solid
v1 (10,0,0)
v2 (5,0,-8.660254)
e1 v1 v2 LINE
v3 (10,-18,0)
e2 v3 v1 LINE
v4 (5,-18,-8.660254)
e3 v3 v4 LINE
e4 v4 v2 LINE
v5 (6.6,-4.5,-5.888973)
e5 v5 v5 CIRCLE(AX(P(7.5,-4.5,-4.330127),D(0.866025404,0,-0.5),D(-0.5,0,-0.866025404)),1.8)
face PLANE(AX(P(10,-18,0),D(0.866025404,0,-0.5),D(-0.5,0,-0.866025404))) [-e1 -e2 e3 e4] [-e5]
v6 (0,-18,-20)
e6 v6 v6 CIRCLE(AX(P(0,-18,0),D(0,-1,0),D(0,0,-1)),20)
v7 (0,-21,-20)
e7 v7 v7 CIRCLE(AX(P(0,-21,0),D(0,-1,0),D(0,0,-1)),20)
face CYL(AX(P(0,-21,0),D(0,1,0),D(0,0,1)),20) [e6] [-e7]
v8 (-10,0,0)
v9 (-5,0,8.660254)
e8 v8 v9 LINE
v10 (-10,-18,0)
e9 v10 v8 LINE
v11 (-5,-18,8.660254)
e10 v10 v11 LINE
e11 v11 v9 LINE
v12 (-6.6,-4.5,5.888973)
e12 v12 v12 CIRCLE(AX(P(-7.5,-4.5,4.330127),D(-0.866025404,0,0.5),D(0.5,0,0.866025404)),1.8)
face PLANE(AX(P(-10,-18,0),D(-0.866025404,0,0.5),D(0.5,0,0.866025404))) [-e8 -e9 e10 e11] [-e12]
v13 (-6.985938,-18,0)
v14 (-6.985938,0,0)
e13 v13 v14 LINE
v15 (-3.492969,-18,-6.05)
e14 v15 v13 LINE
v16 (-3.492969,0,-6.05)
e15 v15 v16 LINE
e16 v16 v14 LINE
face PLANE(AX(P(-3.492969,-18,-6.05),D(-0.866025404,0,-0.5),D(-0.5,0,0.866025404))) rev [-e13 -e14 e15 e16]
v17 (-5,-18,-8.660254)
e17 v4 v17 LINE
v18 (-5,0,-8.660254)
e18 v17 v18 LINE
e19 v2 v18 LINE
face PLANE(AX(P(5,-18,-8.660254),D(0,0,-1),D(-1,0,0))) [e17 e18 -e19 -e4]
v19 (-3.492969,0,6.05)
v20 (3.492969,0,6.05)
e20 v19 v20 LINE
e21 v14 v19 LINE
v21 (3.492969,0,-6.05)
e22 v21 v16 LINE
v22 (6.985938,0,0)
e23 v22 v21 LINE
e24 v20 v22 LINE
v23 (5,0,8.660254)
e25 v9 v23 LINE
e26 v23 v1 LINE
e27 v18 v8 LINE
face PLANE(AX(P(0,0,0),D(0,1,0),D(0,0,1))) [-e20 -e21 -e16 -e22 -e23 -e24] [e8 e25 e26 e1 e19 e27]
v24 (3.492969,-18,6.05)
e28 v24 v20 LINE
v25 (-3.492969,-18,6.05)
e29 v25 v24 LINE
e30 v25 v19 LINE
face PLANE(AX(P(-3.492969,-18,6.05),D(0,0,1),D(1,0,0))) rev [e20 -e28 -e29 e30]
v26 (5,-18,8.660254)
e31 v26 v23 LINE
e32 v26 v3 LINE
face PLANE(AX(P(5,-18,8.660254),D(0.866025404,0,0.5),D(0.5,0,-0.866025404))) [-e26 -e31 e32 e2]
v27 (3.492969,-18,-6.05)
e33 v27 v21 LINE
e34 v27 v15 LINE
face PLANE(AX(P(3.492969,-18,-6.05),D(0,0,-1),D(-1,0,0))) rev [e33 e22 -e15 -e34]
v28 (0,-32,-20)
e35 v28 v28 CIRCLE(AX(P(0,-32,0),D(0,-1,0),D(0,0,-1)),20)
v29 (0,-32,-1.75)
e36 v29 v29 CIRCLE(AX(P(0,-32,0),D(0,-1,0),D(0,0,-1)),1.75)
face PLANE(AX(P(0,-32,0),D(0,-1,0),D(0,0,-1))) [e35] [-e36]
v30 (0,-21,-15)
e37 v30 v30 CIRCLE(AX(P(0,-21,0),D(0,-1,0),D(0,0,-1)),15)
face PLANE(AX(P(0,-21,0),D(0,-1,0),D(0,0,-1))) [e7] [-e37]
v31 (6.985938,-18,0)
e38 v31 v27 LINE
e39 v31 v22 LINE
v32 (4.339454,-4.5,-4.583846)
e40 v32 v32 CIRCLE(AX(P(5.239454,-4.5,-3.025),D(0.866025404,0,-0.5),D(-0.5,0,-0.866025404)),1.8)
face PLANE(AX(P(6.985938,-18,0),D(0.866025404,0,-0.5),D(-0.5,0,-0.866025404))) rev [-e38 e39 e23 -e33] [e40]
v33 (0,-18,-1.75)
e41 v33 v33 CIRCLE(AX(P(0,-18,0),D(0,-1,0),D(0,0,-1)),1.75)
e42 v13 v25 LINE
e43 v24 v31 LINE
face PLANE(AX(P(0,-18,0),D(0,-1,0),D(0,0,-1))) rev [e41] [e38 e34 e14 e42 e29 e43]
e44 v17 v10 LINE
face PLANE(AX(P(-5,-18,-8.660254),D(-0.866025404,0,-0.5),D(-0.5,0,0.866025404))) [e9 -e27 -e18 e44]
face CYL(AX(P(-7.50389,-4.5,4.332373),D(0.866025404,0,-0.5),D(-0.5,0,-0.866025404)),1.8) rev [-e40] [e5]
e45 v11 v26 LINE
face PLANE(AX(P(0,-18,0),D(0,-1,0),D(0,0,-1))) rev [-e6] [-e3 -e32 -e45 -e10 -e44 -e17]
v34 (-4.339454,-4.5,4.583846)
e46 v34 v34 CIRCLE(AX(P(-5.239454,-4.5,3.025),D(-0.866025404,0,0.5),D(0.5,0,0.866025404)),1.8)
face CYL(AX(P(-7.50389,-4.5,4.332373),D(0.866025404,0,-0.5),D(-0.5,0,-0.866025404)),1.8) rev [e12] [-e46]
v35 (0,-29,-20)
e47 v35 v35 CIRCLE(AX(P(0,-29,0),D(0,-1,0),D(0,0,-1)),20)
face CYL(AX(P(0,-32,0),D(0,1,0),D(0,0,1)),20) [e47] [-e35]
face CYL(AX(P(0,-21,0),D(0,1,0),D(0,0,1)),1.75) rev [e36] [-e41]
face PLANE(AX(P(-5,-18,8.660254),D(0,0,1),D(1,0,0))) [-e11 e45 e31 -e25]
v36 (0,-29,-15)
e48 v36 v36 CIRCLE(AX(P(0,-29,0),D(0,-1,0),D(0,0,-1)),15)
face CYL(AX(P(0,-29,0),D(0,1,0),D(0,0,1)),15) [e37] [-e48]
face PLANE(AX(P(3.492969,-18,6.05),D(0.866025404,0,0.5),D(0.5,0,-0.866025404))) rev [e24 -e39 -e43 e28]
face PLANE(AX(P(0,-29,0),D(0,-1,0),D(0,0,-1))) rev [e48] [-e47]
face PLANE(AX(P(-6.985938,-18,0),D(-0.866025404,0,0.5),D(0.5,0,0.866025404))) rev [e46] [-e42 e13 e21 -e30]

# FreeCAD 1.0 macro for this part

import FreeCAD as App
import Part
import Sketcher
from FreeCAD import Vector
Q = App.Units.Quantity

doc = App.newDocument("Part")
params = doc.addObject("Spreadsheet::Sheet", "Params")
for row, (alias, value) in enumerate([
    ("sketch1_width", "10 mm"),
    ("sketch1_length", "10 mm"),
    ("pad1_length", "18 mm"),
    ("sketch2_diameter", "3.6 mm"),
    ("pocket1_length", "17.325 mm"),
    ("sketch3_diameter", "40 mm"),
    ("sketch3_diameter2", "3.5 mm"),
    ("pad2_length", "3 mm"),
    ("sketch4_diameter", "30 mm"),
    ("sketch4_diameter2", "3.5 mm"),
    ("pad3_length", "8 mm"),
    ("sketch5_diameter", "40 mm"),
    ("sketch5_diameter2", "3.5 mm"),
    ("pad4_length", "3 mm"),
], start=1):
    params.set(f"A{row}", alias)
    params.set(f"B{row}", "=" + value)
    params.setAlias(f"B{row}", alias)

body = doc.addObject("PartDesign::Body", "Body")

# Sketch on XZ plane
sketch1 = body.newObject("Sketcher::SketchObject", "Sketch")
sketch1.AttachmentSupport = (doc.getObject("XZ_Plane"), [""])
sketch1.MapMode = "FlatFace"
sketch1.addGeometry([
    Part.LineSegment(Vector(10, 0, 0), Vector(5, -9, 0)),  # 0
    Part.LineSegment(Vector(5, -9, 0), Vector(-5, -9, 0)),  # 1
    Part.LineSegment(Vector(-5, -9, 0), Vector(-10, 0, 0)),  # 2
    Part.LineSegment(Vector(-10, 0, 0), Vector(-5, 9, 0)),  # 3
    Part.LineSegment(Vector(-5, 9, 0), Vector(5, 9, 0)),  # 4
    Part.LineSegment(Vector(5, 9, 0), Vector(10, 0, 0)),  # 5
    Part.LineSegment(Vector(3, -6, 0), Vector(7, 0, 0)),  # 6
    Part.LineSegment(Vector(7, 0, 0), Vector(3, 6, 0)),  # 7
    Part.LineSegment(Vector(3, 6, 0), Vector(-3, 6, 0)),  # 8
    Part.LineSegment(Vector(-3, 6, 0), Vector(-7, 0, 0)),  # 9
    Part.LineSegment(Vector(-7, 0, 0), Vector(-3, -6, 0)),  # 10
    Part.LineSegment(Vector(-3, -6, 0), Vector(3, -6, 0)),  # 11
], False)
sketch1.addConstraint([
    Sketcher.Constraint("Coincident", 0, 2, 1, 1),
    Sketcher.Constraint("Coincident", 1, 2, 2, 1),
    Sketcher.Constraint("Coincident", 2, 2, 3, 1),
    Sketcher.Constraint("Coincident", 3, 2, 4, 1),
    Sketcher.Constraint("Coincident", 4, 2, 5, 1),
    Sketcher.Constraint("Coincident", 5, 2, 0, 1),
    Sketcher.Constraint("Coincident", 6, 2, 7, 1),
    Sketcher.Constraint("Coincident", 7, 2, 8, 1),
    Sketcher.Constraint("Coincident", 8, 2, 9, 1),
    Sketcher.Constraint("Coincident", 9, 2, 10, 1),
    Sketcher.Constraint("Coincident", 10, 2, 11, 1),
    Sketcher.Constraint("Coincident", 11, 2, 6, 1),
    Sketcher.Constraint("Horizontal", 1),
    Sketcher.Constraint("Horizontal", 4),
    Sketcher.Constraint("Horizontal", 8),
    Sketcher.Constraint("Horizontal", 11),
    Sketcher.Constraint("Symmetric", 0, 2, 3, 2, -1, 1),
    Sketcher.Constraint("Symmetric", 2, 2, 5, 2, -1, 1),
    Sketcher.Constraint("Symmetric", 6, 2, 9, 2, -1, 1),
    Sketcher.Constraint("Symmetric", 7, 2, 10, 2, -1, 1),
    Sketcher.Constraint("PointOnObject", 2, 2, -1),
    Sketcher.Constraint("PointOnObject", 6, 2, -1),
    Sketcher.Constraint("Parallel", 2, 5),
    Sketcher.Constraint("Parallel", 3, 6),
    Sketcher.Constraint("Parallel", 5, 7),
    Sketcher.Constraint("Parallel", 6, 9),
    Sketcher.Constraint("Vertical", 1, 2, 3, 2),
    Sketcher.Constraint("DistanceX", 1, 2, 1, 1, 10.0),
    Sketcher.Constraint("Angle", 0, Q("-120 deg")),
    Sketcher.Constraint("Distance", 0, 10.0),
    Sketcher.Constraint("DistanceY", 10, 2, 8, 2, 12.1),
    Sketcher.Constraint("DistanceX", 8, 2, 8, 1, 6.985938),
])
sketch1.setExpression("Constraints[27]", "Params.sketch1_width")
sketch1.setExpression("Constraints[29]", "Params.sketch1_length")
pad1 = body.newObject("PartDesign::Pad", "Pad")
pad1.Profile = sketch1
pad1.setExpression("Length", "Params.pad1_length")

# Sketch on an angled plane
sketch2 = body.newObject("Sketcher::SketchObject", "Sketch001")
sketch2.Placement = App.Placement(Vector(7.5, 0, -4.330127), App.Rotation(Vector(-0.5, 0, -0.866025404), Vector(0, 1, 0), Vector(0.866025404, 0, -0.5), "ZXY"))
sketch2.addGeometry(Part.Circle(Vector(0, -4.5, 0), Vector(0, 0, 1), 1.8), False)
sketch2.addConstraint([
    Sketcher.Constraint("PointOnObject", 0, 3, -2),
    Sketcher.Constraint("Diameter", 0, 3.6),
    Sketcher.Constraint("DistanceY", 0, 3, -1, 1, 4.5),
])
sketch2.setExpression("Constraints[1]", "Params.sketch2_diameter")
pocket1 = body.newObject("PartDesign::Pocket", "Pocket")
pocket1.Profile = sketch2
pocket1.setExpression("Length", "Params.pocket1_length")

# Sketch on XZ plane
sketch3 = body.newObject("Sketcher::SketchObject", "Sketch002")
sketch3.AttachmentSupport = (doc.getObject("XZ_Plane"), [""])
sketch3.MapMode = "FlatFace"
sketch3.AttachmentOffset = App.Placement(Vector(0, 0, 18), App.Rotation())
sketch3.addGeometry([
    Part.Circle(Vector(0, 0, 0), Vector(0, 0, 1), 20),
    Part.Circle(Vector(0, 0, 0), Vector(0, 0, 1), 1.8),
], False)
sketch3.addConstraint([
    Sketcher.Constraint("Coincident", 0, 3, -1, 1),
    Sketcher.Constraint("Coincident", 1, 3, -1, 1),
    Sketcher.Constraint("Diameter", 0, 40.0),
    Sketcher.Constraint("Diameter", 1, 3.5),
])
sketch3.setExpression("Constraints[2]", "Params.sketch3_diameter")
sketch3.setExpression("Constraints[3]", "Params.sketch3_diameter2")
pad2 = body.newObject("PartDesign::Pad", "Pad001")
pad2.Profile = sketch3
pad2.setExpression("Length", "Params.pad2_length")

# Sketch on XZ plane
sketch4 = body.newObject("Sketcher::SketchObject", "Sketch003")
sketch4.AttachmentSupport = (doc.getObject("XZ_Plane"), [""])
sketch4.MapMode = "FlatFace"
sketch4.AttachmentOffset = App.Placement(Vector(0, 0, 21), App.Rotation())
sketch4.addGeometry([
    Part.Circle(Vector(0, 0, 0), Vector(0, 0, 1), 15),
    Part.Circle(Vector(0, 0, 0), Vector(0, 0, 1), 1.8),
], False)
sketch4.addConstraint([
    Sketcher.Constraint("Coincident", 0, 3, -1, 1),
    Sketcher.Constraint("Coincident", 1, 3, -1, 1),
    Sketcher.Constraint("Diameter", 0, 30.0),
    Sketcher.Constraint("Diameter", 1, 3.5),
])
sketch4.setExpression("Constraints[2]", "Params.sketch4_diameter")
sketch4.setExpression("Constraints[3]", "Params.sketch4_diameter2")
pad3 = body.newObject("PartDesign::Pad", "Pad002")
pad3.Profile = sketch4
pad3.setExpression("Length", "Params.pad3_length")

# Sketch on XZ plane
sketch5 = body.newObject("Sketcher::SketchObject", "Sketch004")
sketch5.AttachmentSupport = (doc.getObject("XZ_Plane"), [""])
sketch5.MapMode = "FlatFace"
sketch5.AttachmentOffset = App.Placement(Vector(0, 0, 29), App.Rotation())
sketch5.addGeometry([
    Part.Circle(Vector(0, 0, 0), Vector(0, 0, 1), 20),
    Part.Circle(Vector(0, 0, 0), Vector(0, 0, 1), 1.8),
], False)
sketch5.addConstraint([
    Sketcher.Constraint("Coincident", 0, 3, -1, 1),
    Sketcher.Constraint("Coincident", 1, 3, -1, 1),
    Sketcher.Constraint("Diameter", 0, 40.0),
    Sketcher.Constraint("Diameter", 1, 3.5),
])
sketch5.setExpression("Constraints[2]", "Params.sketch5_diameter")
sketch5.setExpression("Constraints[3]", "Params.sketch5_diameter2")
pad4 = body.newObject("PartDesign::Pad", "Pad003")
pad4.Profile = sketch5
pad4.setExpression("Length", "Params.pad4_length")

doc.recompute()
